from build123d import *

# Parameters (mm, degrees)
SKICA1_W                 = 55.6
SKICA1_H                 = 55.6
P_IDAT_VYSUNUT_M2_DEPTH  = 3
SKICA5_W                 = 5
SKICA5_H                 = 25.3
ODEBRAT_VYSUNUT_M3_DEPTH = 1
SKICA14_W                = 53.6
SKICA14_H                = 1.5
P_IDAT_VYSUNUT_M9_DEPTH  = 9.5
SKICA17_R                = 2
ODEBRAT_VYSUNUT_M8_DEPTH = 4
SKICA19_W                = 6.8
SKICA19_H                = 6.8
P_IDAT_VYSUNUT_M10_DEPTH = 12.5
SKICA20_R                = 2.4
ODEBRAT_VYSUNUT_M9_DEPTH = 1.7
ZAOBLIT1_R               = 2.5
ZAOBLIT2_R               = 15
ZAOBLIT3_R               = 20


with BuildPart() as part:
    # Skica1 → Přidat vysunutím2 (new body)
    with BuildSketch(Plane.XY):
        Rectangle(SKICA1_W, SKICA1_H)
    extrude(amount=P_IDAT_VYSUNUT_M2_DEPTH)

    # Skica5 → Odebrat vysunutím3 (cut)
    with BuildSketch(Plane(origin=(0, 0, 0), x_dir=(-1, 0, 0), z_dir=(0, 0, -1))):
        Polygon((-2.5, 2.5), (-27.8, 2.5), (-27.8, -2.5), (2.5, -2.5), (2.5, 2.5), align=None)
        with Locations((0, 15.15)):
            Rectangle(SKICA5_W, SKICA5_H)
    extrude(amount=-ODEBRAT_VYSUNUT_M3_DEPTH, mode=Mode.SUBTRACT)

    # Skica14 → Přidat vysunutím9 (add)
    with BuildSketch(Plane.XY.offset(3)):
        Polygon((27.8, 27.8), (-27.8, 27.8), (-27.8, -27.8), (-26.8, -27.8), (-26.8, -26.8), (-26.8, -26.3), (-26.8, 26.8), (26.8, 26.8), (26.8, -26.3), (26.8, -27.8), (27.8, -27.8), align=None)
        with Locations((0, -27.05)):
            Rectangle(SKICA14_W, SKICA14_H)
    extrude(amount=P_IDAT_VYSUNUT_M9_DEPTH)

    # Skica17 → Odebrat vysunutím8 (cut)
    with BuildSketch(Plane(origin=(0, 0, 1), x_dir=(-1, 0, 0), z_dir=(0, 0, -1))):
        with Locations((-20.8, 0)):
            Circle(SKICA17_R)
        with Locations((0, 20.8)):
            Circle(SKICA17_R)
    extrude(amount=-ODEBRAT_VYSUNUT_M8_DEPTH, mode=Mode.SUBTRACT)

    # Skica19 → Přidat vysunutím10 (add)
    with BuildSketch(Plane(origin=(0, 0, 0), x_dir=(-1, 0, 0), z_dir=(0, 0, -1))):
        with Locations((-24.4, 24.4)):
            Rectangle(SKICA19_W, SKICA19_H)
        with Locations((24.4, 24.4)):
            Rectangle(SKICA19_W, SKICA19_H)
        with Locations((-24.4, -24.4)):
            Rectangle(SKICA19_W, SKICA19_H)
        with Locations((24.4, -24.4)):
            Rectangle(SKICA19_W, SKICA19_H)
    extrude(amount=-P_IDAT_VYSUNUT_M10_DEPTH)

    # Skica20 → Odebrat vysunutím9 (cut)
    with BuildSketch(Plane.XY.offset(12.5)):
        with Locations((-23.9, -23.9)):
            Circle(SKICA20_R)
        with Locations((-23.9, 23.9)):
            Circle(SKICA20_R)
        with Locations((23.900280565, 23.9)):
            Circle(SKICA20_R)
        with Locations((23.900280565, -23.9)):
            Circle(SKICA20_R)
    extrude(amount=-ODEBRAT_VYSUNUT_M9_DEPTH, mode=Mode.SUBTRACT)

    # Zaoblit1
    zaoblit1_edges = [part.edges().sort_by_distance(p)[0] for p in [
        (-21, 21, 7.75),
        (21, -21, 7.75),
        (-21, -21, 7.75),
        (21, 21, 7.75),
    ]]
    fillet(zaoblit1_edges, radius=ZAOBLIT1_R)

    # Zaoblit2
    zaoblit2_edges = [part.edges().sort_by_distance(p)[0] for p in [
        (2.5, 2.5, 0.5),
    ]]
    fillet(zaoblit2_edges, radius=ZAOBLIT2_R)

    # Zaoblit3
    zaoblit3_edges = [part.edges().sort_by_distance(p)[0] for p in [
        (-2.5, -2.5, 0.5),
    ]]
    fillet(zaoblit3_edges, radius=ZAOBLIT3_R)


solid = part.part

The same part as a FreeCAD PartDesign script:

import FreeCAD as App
import Part
import Sketcher
from FreeCAD import Vector
Q = App.Units.Quantity


def edges_at(feature, points):
    """Names of the edges that pass closest to the given points."""
    edges = feature.Shape.Edges
    near = lambda p: min(range(len(edges)), key=lambda i: edges[i].distToShape(Part.Vertex(*p))[0])
    return sorted({f"Edge{near(p) + 1}" for p in points})


def add_polygon(sketch, points):
    """Adds a closed chain of lines whose ends are joined by coincident constraints."""
    first, n = sketch.GeometryCount, len(points)
    for a, b in zip(points, points[1:] + points[:1]):
        sketch.addGeometry(Part.LineSegment(App.Vector(*a, 0), App.Vector(*b, 0)), False)
    for i in range(n):
        sketch.addConstraint(Sketcher.Constraint("Coincident", first + i, 2, first + (i + 1) % n, 1))

doc = App.newDocument("Part")
body = doc.addObject("PartDesign::Body", "Body")

sketch1 = body.newObject("Sketcher::SketchObject", "Sketch")
sketch1.AttachmentSupport = (doc.getObject("XY_Plane"), [""])
sketch1.MapMode = "FlatFace"
add_polygon(sketch1, [(-28, 28), (-28, -28), (28, -28), (28, 28)])
sketch1.addConstraint(Sketcher.Constraint("Vertical", 0))
sketch1.addConstraint(Sketcher.Constraint("Horizontal", 1))
sketch1.addConstraint(Sketcher.Constraint("Vertical", 2))
sketch1.addConstraint(Sketcher.Constraint("Horizontal", 3))
sketch1.addConstraint(Sketcher.Constraint("Symmetric", 0, 2, 2, 2, -1, 1))
sketch1.addConstraint(Sketcher.Constraint("Equal", 3, 0))
sketch1.addConstraint(Sketcher.Constraint("DistanceX", 1, 1, 1, 2, Q("55.6 mm")))
pad1 = body.newObject("PartDesign::Pad", "Pad")
pad1.Profile = sketch1
pad1.Length = 3

sketch2 = body.newObject("Sketcher::SketchObject", "Sketch001")
sketch2.AttachmentSupport = (doc.getObject("XY_Plane"), [""])
sketch2.MapMode = "FlatFace"
add_polygon(sketch2, [(28, 2), (28, -2), (-2, -2), (-2, 28), (2, 28), (2, 2)])
sketch2.addConstraint(Sketcher.Constraint("Vertical", 0))
sketch2.addConstraint(Sketcher.Constraint("Horizontal", 1))
sketch2.addConstraint(Sketcher.Constraint("Vertical", 2))
sketch2.addConstraint(Sketcher.Constraint("Horizontal", 3))
sketch2.addConstraint(Sketcher.Constraint("Vertical", 4))
sketch2.addConstraint(Sketcher.Constraint("Horizontal", 5))
sketch2.addConstraint(Sketcher.Constraint("Symmetric", 1, 2, 4, 2, -1, 1))
sketch2.addConstraint(Sketcher.Constraint("Equal", 3, 0))
sketch2.addConstraint(Sketcher.Constraint("Equal", 1, 2))
sketch2.addConstraint(Sketcher.Constraint("DistanceX", 3, 1, 3, 2, Q("5 mm")))
sketch2.addConstraint(Sketcher.Constraint("DistanceX", 1, 2, 1, 1, Q("30.3 mm")))
pocket1 = body.newObject("PartDesign::Pocket", "Pocket")
pocket1.Profile = sketch2
pocket1.Length = 1
pocket1.Reversed = True

sketch3 = body.newObject("Sketcher::SketchObject", "Sketch002")
sketch3.AttachmentSupport = (doc.getObject("XY_Plane"), [""])
sketch3.MapMode = "FlatFace"
sketch3.AttachmentOffset = App.Placement(Vector(0, 0, 3), App.Rotation())
add_polygon(sketch3, [(28, 28), (-28, 28), (-28, -28), (28, -28)])
add_polygon(sketch3, [(-27, -26), (-27, 27), (27, 27), (27, -26)])
sketch3.addConstraint(Sketcher.Constraint("Horizontal", 0))
sketch3.addConstraint(Sketcher.Constraint("Vertical", 1))
sketch3.addConstraint(Sketcher.Constraint("Horizontal", 2))
sketch3.addConstraint(Sketcher.Constraint("Vertical", 3))
sketch3.addConstraint(Sketcher.Constraint("Vertical", 4))
sketch3.addConstraint(Sketcher.Constraint("Horizontal", 5))
sketch3.addConstraint(Sketcher.Constraint("Vertical", 6))
sketch3.addConstraint(Sketcher.Constraint("Horizontal", 7))
sketch3.addConstraint(Sketcher.Constraint("Symmetric", 0, 2, 2, 2, -1, 1))
sketch3.addConstraint(Sketcher.Constraint("Equal", 2, 1))
sketch3.addConstraint(Sketcher.Constraint("DistanceX", 0, 2, 0, 1, Q("55.6 mm")))
sketch3.addConstraint(Sketcher.Constraint("DistanceX", 5, 1, 5, 2, Q("53.6 mm")))
sketch3.addConstraint(Sketcher.Constraint("DistanceY", 4, 1, 4, 2, Q("53.1 mm")))
sketch3.addConstraint(Sketcher.Constraint("DistanceX", 0, 2, 4, 2, Q("1 mm")))
sketch3.addConstraint(Sketcher.Constraint("DistanceY", 4, 2, 0, 2, Q("1 mm")))
pad2 = body.newObject("PartDesign::Pad", "Pad001")
pad2.Profile = sketch3
pad2.Length = 9.5

sketch4 = body.newObject("Sketcher::SketchObject", "Sketch003")
sketch4.AttachmentSupport = (doc.getObject("XY_Plane"), [""])
sketch4.MapMode = "FlatFace"
sketch4.AttachmentOffset = App.Placement(Vector(0, 0, 1), App.Rotation())
sketch4.addGeometry(Part.Circle(Vector(20.8, 0, 0), Vector(0, 0, 1), 2), False)
sketch4.addGeometry(Part.Circle(Vector(0, 20.8, 0), Vector(0, 0, 1), 2), False)
sketch4.addConstraint(Sketcher.Constraint("Equal", 0, 1))
sketch4.addConstraint(Sketcher.Constraint("PointOnObject", 0, 3, -1))
sketch4.addConstraint(Sketcher.Constraint("PointOnObject", 1, 3, -2))
sketch4.addConstraint(Sketcher.Constraint("Diameter", 0, Q("4 mm")))
sketch4.addConstraint(Sketcher.Constraint("DistanceX", -1, 1, 0, 3, Q("20.8 mm")))
sketch4.addConstraint(Sketcher.Constraint("DistanceY", -1, 1, 1, 3, Q("20.8 mm")))
pocket2 = body.newObject("PartDesign::Pocket", "Pocket001")
pocket2.Profile = sketch4
pocket2.Length = 4
pocket2.Reversed = True

sketch5 = body.newObject("Sketcher::SketchObject", "Sketch004")
sketch5.AttachmentSupport = (doc.getObject("XY_Plane"), [""])
sketch5.MapMode = "FlatFace"
add_polygon(sketch5, [(28, 28), (28, 21), (21, 21), (21, 28)])
add_polygon(sketch5, [(-21, 28), (-21, 21), (-28, 21), (-28, 28)])
add_polygon(sketch5, [(28, -21), (28, -28), (21, -28), (21, -21)])
add_polygon(sketch5, [(-21, -21), (-21, -28), (-28, -28), (-28, -21)])
sketch5.addConstraint(Sketcher.Constraint("Vertical", 0))
sketch5.addConstraint(Sketcher.Constraint("Horizontal", 1))
sketch5.addConstraint(Sketcher.Constraint("Vertical", 2))
sketch5.addConstraint(Sketcher.Constraint("Horizontal", 3))
sketch5.addConstraint(Sketcher.Constraint("Vertical", 4))
sketch5.addConstraint(Sketcher.Constraint("Horizontal", 5))
sketch5.addConstraint(Sketcher.Constraint("Vertical", 6))
sketch5.addConstraint(Sketcher.Constraint("Horizontal", 7))
sketch5.addConstraint(Sketcher.Constraint("Vertical", 8))
sketch5.addConstraint(Sketcher.Constraint("Horizontal", 9))
sketch5.addConstraint(Sketcher.Constraint("Vertical", 10))
sketch5.addConstraint(Sketcher.Constraint("Horizontal", 11))
sketch5.addConstraint(Sketcher.Constraint("Vertical", 12))
sketch5.addConstraint(Sketcher.Constraint("Horizontal", 13))
sketch5.addConstraint(Sketcher.Constraint("Vertical", 14))
sketch5.addConstraint(Sketcher.Constraint("Horizontal", 15))
sketch5.addConstraint(Sketcher.Constraint("Symmetric", 6, 2, 8, 2, -1, 1))
sketch5.addConstraint(Sketcher.Constraint("Symmetric", 4, 2, 10, 2, -1, 1))
sketch5.addConstraint(Sketcher.Constraint("Symmetric", 2, 2, 12, 2, -1, 1))
sketch5.addConstraint(Sketcher.Constraint("Symmetric", 0, 2, 14, 2, -1, 1))
sketch5.addConstraint(Sketcher.Constraint("Symmetric", 1, 2, 4, 2, -2))
sketch5.addConstraint(Sketcher.Constraint("Symmetric", 3, 2, 6, 2, -2))
sketch5.addConstraint(Sketcher.Constraint("Equal", 15, 0))
sketch5.addConstraint(Sketcher.Constraint("DistanceX", 1, 2, 1, 1, Q("6.8 mm")))
sketch5.addConstraint(Sketcher.Constraint("DistanceY", -1, 1, 0, 2, Q("21 mm")))
sketch5.addConstraint(Sketcher.Constraint("DistanceX", -1, 1, 1, 2, Q("21 mm")))
pad3 = body.newObject("PartDesign::Pad", "Pad002")
pad3.Profile = sketch5
pad3.Length = 12.5

sketch6 = body.newObject("Sketcher::SketchObject", "Sketch005")
sketch6.AttachmentSupport = (doc.getObject("XY_Plane"), [""])
sketch6.MapMode = "FlatFace"
sketch6.AttachmentOffset = App.Placement(Vector(0, 0, 12.5), App.Rotation())
sketch6.addGeometry(Part.Circle(Vector(-23.9, -23.9, 0), Vector(0, 0, 1), 2.4), False)
sketch6.addGeometry(Part.Circle(Vector(-23.9, 23.9, 0), Vector(0, 0, 1), 2.4), False)
sketch6.addGeometry(Part.Circle(Vector(23.9, 23.9, 0), Vector(0, 0, 1), 2.4), False)
sketch6.addGeometry(Part.Circle(Vector(23.9, -23.9, 0), Vector(0, 0, 1), 2.4), False)
sketch6.addConstraint(Sketcher.Constraint("Equal", 0, 1))
sketch6.addConstraint(Sketcher.Constraint("Equal", 1, 2))
sketch6.addConstraint(Sketcher.Constraint("Equal", 2, 3))
sketch6.addConstraint(Sketcher.Constraint("Symmetric", 0, 3, 1, 3, -1))
sketch6.addConstraint(Sketcher.Constraint("Symmetric", 2, 3, 3, 3, -1))
sketch6.addConstraint(Sketcher.Constraint("Horizontal", 1, 3, 2, 3))
sketch6.addConstraint(Sketcher.Constraint("Diameter", 0, Q("4.8 mm")))
sketch6.addConstraint(Sketcher.Constraint("DistanceX", 0, 3, -1, 1, Q("23.9 mm")))
sketch6.addConstraint(Sketcher.Constraint("DistanceY", 0, 3, -1, 1, Q("23.9 mm")))
sketch6.addConstraint(Sketcher.Constraint("DistanceX", -1, 1, 2, 3, Q("23.900281 mm")))
pocket3 = body.newObject("PartDesign::Pocket", "Pocket002")
pocket3.Profile = sketch6
pocket3.Length = 1.7
doc.recompute()

fillet = body.newObject("PartDesign::Fillet", "Fillet")
fillet.Base = (pocket3, edges_at(pocket3, [
    (-21, 21, 7.75),
    (21, -21, 7.75),
    (-21, -21, 7.75),
    (21, 21, 7.75),
]))
fillet.Radius = 2.5
doc.recompute()

fillet2 = body.newObject("PartDesign::Fillet", "Fillet001")
fillet2.Base = (fillet, edges_at(fillet, [(2.5, 2.5, 0.5)]))
fillet2.Radius = 15
doc.recompute()

fillet3 = body.newObject("PartDesign::Fillet", "Fillet002")
fillet3.Base = (fillet2, edges_at(fillet2, [(-2.5, -2.5, 0.5)]))
fillet3.Radius = 20

doc.recompute()
